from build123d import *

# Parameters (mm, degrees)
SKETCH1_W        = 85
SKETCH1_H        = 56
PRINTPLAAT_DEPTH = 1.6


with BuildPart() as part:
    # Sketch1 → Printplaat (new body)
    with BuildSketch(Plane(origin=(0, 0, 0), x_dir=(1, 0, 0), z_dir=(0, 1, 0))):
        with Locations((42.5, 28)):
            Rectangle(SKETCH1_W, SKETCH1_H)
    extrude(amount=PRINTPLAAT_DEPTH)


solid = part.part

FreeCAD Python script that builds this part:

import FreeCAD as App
import Part
import Sketcher


def add_polygon(sketch, points):
    """Adds a closed chain of lines whose ends are joined by coincident constraints."""
    first, n = sketch.GeometryCount, len(points)
    for a, b in zip(points, points[1:] + points[:1]):
        sketch.addGeometry(Part.LineSegment(App.Vector(*a, 0), App.Vector(*b, 0)), False)
    for i in range(n):
        sketch.addConstraint(Sketcher.Constraint("Coincident", first + i, 2, first + (i + 1) % n, 1))

doc = App.newDocument("Part")
body = doc.addObject("PartDesign::Body", "Body")

# Sketch on XZ plane
sketch1 = body.newObject("Sketcher::SketchObject", "Sketch")
sketch1.AttachmentSupport = (doc.getObject("XZ_Plane"), [""])
sketch1.MapMode = "FlatFace"
add_polygon(sketch1, [(0, -56), (0, 0), (85, 0), (85, -56)])  # lines 0-3
sketch1.addConstraint([
    Sketcher.Constraint("Vertical", 0),
    Sketcher.Constraint("Horizontal", 1),
    Sketcher.Constraint("Vertical", 2),
    Sketcher.Constraint("Horizontal", 3),
    Sketcher.Constraint("Coincident", 0, 2, -1, 1),
    Sketcher.Constraint("DistanceX", 1, 1, 1, 2, 85.0),
    Sketcher.Constraint("DistanceY", 0, 1, 0, 2, 56.0),
])
pad1 = body.newObject("PartDesign::Pad", "Pad")
pad1.Profile = sketch1
pad1.Length = 1.6
pad1.Reversed = True

doc.recompute()
